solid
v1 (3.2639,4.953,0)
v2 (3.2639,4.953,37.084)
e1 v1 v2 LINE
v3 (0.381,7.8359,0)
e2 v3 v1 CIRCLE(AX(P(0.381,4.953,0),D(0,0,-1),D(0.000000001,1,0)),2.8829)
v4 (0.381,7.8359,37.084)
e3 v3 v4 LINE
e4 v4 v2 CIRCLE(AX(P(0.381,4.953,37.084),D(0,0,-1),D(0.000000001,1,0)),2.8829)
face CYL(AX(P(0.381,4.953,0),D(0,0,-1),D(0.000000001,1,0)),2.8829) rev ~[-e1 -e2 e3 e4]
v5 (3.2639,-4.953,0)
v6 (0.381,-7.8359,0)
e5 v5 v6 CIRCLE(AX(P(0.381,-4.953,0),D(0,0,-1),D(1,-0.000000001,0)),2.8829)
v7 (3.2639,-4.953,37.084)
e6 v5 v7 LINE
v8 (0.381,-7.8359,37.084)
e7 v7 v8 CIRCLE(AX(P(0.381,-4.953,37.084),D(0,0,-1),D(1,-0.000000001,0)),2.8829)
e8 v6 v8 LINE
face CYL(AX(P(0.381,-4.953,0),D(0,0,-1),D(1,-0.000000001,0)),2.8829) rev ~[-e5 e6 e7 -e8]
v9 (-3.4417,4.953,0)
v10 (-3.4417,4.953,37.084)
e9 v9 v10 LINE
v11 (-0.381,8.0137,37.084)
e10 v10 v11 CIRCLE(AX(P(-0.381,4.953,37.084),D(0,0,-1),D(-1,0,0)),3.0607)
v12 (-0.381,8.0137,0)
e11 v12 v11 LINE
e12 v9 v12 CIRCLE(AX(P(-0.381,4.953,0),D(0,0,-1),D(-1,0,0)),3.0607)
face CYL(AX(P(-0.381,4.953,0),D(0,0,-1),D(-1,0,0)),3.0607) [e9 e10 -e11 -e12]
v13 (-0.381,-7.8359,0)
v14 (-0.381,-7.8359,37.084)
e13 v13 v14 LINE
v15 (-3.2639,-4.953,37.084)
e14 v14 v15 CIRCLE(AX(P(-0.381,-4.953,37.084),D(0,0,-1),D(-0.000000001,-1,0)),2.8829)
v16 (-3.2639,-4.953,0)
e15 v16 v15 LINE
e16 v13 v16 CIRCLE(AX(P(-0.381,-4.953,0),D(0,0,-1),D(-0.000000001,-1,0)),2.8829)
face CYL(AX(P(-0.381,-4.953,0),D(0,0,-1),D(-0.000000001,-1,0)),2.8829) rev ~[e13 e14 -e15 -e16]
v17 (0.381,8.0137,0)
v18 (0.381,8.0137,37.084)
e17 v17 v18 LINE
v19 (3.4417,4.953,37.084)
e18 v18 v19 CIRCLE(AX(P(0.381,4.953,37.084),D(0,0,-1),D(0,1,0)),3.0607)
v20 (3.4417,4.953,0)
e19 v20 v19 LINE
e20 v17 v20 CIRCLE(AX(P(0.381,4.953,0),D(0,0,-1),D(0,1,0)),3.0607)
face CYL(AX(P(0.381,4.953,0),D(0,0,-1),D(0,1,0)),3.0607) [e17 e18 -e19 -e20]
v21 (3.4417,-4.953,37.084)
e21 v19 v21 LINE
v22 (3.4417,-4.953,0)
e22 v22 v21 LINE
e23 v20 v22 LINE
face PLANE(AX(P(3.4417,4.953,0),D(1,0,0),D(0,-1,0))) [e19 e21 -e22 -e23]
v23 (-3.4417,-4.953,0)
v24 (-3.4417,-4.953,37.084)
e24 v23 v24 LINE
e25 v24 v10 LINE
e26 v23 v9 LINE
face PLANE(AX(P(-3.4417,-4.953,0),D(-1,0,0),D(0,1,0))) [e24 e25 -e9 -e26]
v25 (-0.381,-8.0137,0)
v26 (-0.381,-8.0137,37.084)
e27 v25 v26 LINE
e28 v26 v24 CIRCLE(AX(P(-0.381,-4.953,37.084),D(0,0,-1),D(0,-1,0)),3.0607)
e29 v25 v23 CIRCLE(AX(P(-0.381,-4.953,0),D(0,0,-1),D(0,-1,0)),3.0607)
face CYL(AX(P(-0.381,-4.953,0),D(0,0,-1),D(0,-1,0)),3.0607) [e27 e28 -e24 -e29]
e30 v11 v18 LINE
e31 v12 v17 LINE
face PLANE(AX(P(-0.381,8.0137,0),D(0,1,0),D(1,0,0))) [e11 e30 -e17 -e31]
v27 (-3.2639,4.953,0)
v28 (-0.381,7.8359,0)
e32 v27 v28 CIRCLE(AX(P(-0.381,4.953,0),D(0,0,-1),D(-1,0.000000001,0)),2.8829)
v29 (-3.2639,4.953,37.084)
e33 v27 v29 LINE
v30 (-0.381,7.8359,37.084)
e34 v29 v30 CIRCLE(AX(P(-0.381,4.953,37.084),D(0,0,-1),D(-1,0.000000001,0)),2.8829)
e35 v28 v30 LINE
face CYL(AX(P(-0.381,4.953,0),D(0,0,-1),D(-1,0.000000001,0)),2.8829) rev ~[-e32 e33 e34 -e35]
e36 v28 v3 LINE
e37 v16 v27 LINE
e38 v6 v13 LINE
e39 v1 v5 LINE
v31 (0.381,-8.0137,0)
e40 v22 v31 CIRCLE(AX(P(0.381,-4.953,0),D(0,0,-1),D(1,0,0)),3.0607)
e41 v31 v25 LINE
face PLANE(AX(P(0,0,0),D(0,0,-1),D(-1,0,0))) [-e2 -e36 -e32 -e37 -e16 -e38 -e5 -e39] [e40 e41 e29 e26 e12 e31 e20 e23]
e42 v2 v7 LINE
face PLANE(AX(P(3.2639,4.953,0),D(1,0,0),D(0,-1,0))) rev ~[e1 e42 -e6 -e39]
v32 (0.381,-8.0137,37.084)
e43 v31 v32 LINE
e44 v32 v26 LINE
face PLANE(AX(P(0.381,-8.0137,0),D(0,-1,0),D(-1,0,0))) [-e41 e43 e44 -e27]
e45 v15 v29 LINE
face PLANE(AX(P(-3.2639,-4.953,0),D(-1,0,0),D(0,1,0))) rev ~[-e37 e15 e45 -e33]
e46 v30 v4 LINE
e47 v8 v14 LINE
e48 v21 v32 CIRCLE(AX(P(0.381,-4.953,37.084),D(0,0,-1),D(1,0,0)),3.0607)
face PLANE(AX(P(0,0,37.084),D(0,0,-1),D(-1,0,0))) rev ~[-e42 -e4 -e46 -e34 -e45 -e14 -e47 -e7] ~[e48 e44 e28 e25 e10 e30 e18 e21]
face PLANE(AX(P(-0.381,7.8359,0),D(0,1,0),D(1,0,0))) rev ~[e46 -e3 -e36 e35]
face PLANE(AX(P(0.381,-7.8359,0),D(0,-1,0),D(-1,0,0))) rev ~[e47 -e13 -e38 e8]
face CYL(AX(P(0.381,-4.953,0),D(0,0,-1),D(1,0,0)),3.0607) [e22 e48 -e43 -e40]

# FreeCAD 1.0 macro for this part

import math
import FreeCAD as App
import Part
import Sketcher
Q = App.Units.Quantity

doc = App.newDocument("Part")
params = doc.addObject("Spreadsheet::Sheet", "Params")
for row, (alias, value) in enumerate([
    ("sketch1_width", "0.03 in"),
    ("sketch1_height", "0.39 in"),
    ("pad1_length", "1.46 in"),
], start=1):
    params.set(f"A{row}", alias)
    params.set(f"B{row}", "=" + value)
    params.setAlias(f"B{row}", alias)

body = doc.addObject("PartDesign::Body", "Body")

# Sketch on XY plane
sketch1 = body.newObject("Sketcher::SketchObject", "Sketch")
sketch1.AttachmentSupport = (doc.getObject("XY_Plane"), [""])
sketch1.MapMode = "FlatFace"
sketch1.addGeometry(Part.LineSegment(App.Vector(3.4, -5, 0), App.Vector(3.4, 5, 0)), False)
sketch1.addGeometry(Part.ArcOfCircle(Part.Circle(App.Vector(0.4, 5, 0), App.Vector(0, 0, 1), 3.1), math.radians(0), math.radians(90)), False)
sketch1.addGeometry(Part.LineSegment(App.Vector(0.4, 8, 0), App.Vector(-0.4, 8, 0)), False)
sketch1.addGeometry(Part.ArcOfCircle(Part.Circle(App.Vector(-0.4, 5, 0), App.Vector(0, 0, 1), 3.1), math.radians(90), math.radians(180)), False)
sketch1.addGeometry(Part.LineSegment(App.Vector(-3.4, 5, 0), App.Vector(-3.4, -5, 0)), False)
sketch1.addGeometry(Part.ArcOfCircle(Part.Circle(App.Vector(-0.4, -5, 0), App.Vector(0, 0, 1), 3.1), math.radians(-180), math.radians(-90)), False)
sketch1.addGeometry(Part.LineSegment(App.Vector(-0.4, -8, 0), App.Vector(0.4, -8, 0)), False)
sketch1.addGeometry(Part.ArcOfCircle(Part.Circle(App.Vector(0.4, -5, 0), App.Vector(0, 0, 1), 3.1), math.radians(-90), math.radians(0)), False)
sketch1.addGeometry(Part.LineSegment(App.Vector(3.3, 5, 0), App.Vector(3.3, -5, 0)), False)
sketch1.addGeometry(Part.ArcOfCircle(Part.Circle(App.Vector(0.4, -5, 0), App.Vector(0, 0, 1), 2.9), math.radians(-90), math.radians(0)), False)
sketch1.addGeometry(Part.LineSegment(App.Vector(0.4, -7.8, 0), App.Vector(-0.4, -7.8, 0)), False)
sketch1.addGeometry(Part.ArcOfCircle(Part.Circle(App.Vector(-0.4, -5, 0), App.Vector(0, 0, 1), 2.9), math.radians(-180), math.radians(-90)), False)
sketch1.addGeometry(Part.LineSegment(App.Vector(-3.3, -5, 0), App.Vector(-3.3, 5, 0)), False)
sketch1.addGeometry(Part.ArcOfCircle(Part.Circle(App.Vector(-0.4, 5, 0), App.Vector(0, 0, 1), 2.9), math.radians(90), math.radians(180)), False)
sketch1.addGeometry(Part.LineSegment(App.Vector(-0.4, 7.8, 0), App.Vector(0.4, 7.8, 0)), False)
sketch1.addGeometry(Part.ArcOfCircle(Part.Circle(App.Vector(0.4, 5, 0), App.Vector(0, 0, 1), 2.9), math.radians(0), math.radians(90)), False)
sketch1.addConstraint(Sketcher.Constraint("Tangent", 0, 2, 1, 1))
sketch1.addConstraint(Sketcher.Constraint("Tangent", 1, 2, 2, 1))
sketch1.addConstraint(Sketcher.Constraint("Tangent", 2, 2, 3, 1))
sketch1.addConstraint(Sketcher.Constraint("Tangent", 3, 2, 4, 1))
sketch1.addConstraint(Sketcher.Constraint("Tangent", 4, 2, 5, 1))
sketch1.addConstraint(Sketcher.Constraint("Tangent", 5, 2, 6, 1))
sketch1.addConstraint(Sketcher.Constraint("Tangent", 6, 2, 7, 1))
sketch1.addConstraint(Sketcher.Constraint("Tangent", 7, 2, 0, 1))
sketch1.addConstraint(Sketcher.Constraint("Tangent", 8, 2, 9, 2))
sketch1.addConstraint(Sketcher.Constraint("Tangent", 9, 1, 10, 1))
sketch1.addConstraint(Sketcher.Constraint("Tangent", 10, 2, 11, 2))
sketch1.addConstraint(Sketcher.Constraint("Tangent", 11, 1, 12, 1))
sketch1.addConstraint(Sketcher.Constraint("Tangent", 12, 2, 13, 2))
sketch1.addConstraint(Sketcher.Constraint("Tangent", 13, 1, 14, 1))
sketch1.addConstraint(Sketcher.Constraint("Tangent", 14, 2, 15, 2))
sketch1.addConstraint(Sketcher.Constraint("Tangent", 15, 1, 8, 1))
sketch1.addConstraint(Sketcher.Constraint("Vertical", 0))
sketch1.addConstraint(Sketcher.Constraint("Horizontal", 2))
sketch1.addConstraint(Sketcher.Constraint("Vertical", 4))
sketch1.addConstraint(Sketcher.Constraint("Horizontal", 6))
sketch1.addConstraint(Sketcher.Constraint("Vertical", 8))
sketch1.addConstraint(Sketcher.Constraint("Horizontal", 10))
sketch1.addConstraint(Sketcher.Constraint("Vertical", 12))
sketch1.addConstraint(Sketcher.Constraint("Horizontal", 14))
sketch1.addConstraint(Sketcher.Constraint("Coincident", 9, 3, 7, 3))
sketch1.addConstraint(Sketcher.Constraint("Coincident", 11, 3, 5, 3))
sketch1.addConstraint(Sketcher.Constraint("Coincident", 13, 3, 3, 3))
sketch1.addConstraint(Sketcher.Constraint("Equal", 1, 3))
sketch1.addConstraint(Sketcher.Constraint("Equal", 3, 5))
sketch1.addConstraint(Sketcher.Constraint("Equal", 5, 7))
sketch1.addConstraint(Sketcher.Constraint("Equal", 13, 15))
sketch1.addConstraint(Sketcher.Constraint("Symmetric", 1, 3, 5, 3, -1, 1))
sketch1.addConstraint(Sketcher.Constraint("DistanceX", 2, 2, 2, 1, Q("0.03 in")))
sketch1.addConstraint(Sketcher.Constraint("DistanceY", 0, 1, 0, 2, Q("0.39 in")))
sketch1.addConstraint(Sketcher.Constraint("Radius", 1, Q("0.1205 in")))
sketch1.addConstraint(Sketcher.Constraint("Radius", 9, Q("0.1135 in")))
sketch1.setExpression("Constraints[32]", "Params.sketch1_width")
sketch1.setExpression("Constraints[33]", "Params.sketch1_height")
pad1 = body.newObject("PartDesign::Pad", "Pad")
pad1.Profile = sketch1
pad1.setExpression("Length", "Params.pad1_length")

doc.recompute()
